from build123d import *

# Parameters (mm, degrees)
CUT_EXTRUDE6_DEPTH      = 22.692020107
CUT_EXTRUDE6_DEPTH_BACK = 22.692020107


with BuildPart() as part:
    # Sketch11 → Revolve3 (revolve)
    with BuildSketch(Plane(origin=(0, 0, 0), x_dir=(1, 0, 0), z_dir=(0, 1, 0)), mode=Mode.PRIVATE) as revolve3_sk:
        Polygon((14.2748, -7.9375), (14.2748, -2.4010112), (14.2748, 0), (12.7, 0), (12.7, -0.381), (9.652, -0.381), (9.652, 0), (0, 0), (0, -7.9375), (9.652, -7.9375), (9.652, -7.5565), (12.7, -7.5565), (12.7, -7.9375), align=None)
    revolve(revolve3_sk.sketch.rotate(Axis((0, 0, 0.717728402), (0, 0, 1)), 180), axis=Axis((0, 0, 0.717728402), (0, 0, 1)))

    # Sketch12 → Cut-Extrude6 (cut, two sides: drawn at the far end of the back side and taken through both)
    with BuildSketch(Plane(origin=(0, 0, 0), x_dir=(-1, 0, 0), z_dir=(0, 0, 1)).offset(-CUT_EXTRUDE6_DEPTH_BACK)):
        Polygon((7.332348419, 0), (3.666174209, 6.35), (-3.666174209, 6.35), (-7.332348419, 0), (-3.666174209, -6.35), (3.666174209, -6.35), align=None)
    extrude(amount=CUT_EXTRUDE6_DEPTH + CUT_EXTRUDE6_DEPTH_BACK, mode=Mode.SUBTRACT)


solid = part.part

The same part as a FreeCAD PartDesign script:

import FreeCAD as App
import Part
import Sketcher
Q = App.Units.Quantity


def add_polygon(sketch, points):
    """Adds a closed chain of lines whose ends are joined by coincident constraints."""
    first, n = sketch.GeometryCount, len(points)
    for a, b in zip(points, points[1:] + points[:1]):
        sketch.addGeometry(Part.LineSegment(App.Vector(*a, 0), App.Vector(*b, 0)), False)
    for i in range(n):
        sketch.addConstraint(Sketcher.Constraint("Coincident", first + i, 2, first + (i + 1) % n, 1))

doc = App.newDocument("Part")
body = doc.addObject("PartDesign::Body", "Body")

sketch1 = doc.addObject("Sketcher::SketchObject", "Sketch")
body.addObject(sketch1)
sketch1.AttachmentSupport = (doc.XZ_Plane, [""])
sketch1.MapMode = "FlatFace"
add_polygon(sketch1, [(14.2748, 7.9375), (14.2748, 0), (12.7, 0), (12.7, 0.381), (9.652, 0.381), (9.652, 0), (0, 0), (0, 7.9375), (9.652, 7.9375), (9.652, 7.5565), (12.7, 7.5565), (12.7, 7.9375)])
sketch1.addConstraint(Sketcher.Constraint("Vertical", 0))
sketch1.addConstraint(Sketcher.Constraint("Horizontal", 1))
sketch1.addConstraint(Sketcher.Constraint("Vertical", 2))
sketch1.addConstraint(Sketcher.Constraint("Horizontal", 3))
sketch1.addConstraint(Sketcher.Constraint("Vertical", 4))
sketch1.addConstraint(Sketcher.Constraint("Horizontal", 5))
sketch1.addConstraint(Sketcher.Constraint("Vertical", 6))
sketch1.addConstraint(Sketcher.Constraint("Horizontal", 7))
sketch1.addConstraint(Sketcher.Constraint("Vertical", 8))
sketch1.addConstraint(Sketcher.Constraint("Horizontal", 9))
sketch1.addConstraint(Sketcher.Constraint("Vertical", 10))
sketch1.addConstraint(Sketcher.Constraint("Horizontal", 11))
sketch1.addConstraint(Sketcher.Constraint("Coincident", 5, 2, -1, 1))
sketch1.addConstraint(Sketcher.Constraint("PointOnObject", 0, 2, -1))
sketch1.addConstraint(Sketcher.Constraint("Horizontal", 7, 2, 10, 2))
sketch1.addConstraint(Sketcher.Constraint("Vertical", 4, 2, 7, 2))
sketch1.addConstraint(Sketcher.Constraint("Vertical", 2, 2, 9, 2))
sketch1.addConstraint(Sketcher.Constraint("Equal", 4, 8))
sketch1.addConstraint(Sketcher.Constraint("DistanceX", 3, 2, 3, 1, Q("0.12 in")))
sketch1.addConstraint(Sketcher.Constraint("DistanceX", 5, 2, 5, 1, Q("0.38 in")))
sketch1.addConstraint(Sketcher.Constraint("DistanceX", 1, 2, 1, 1, Q("0.062 in")))
sketch1.addConstraint(Sketcher.Constraint("DistanceY", 0, 2, 0, 1, Q("0.3125 in")))
sketch1.addConstraint(Sketcher.Constraint("DistanceY", 2, 1, 2, 2, Q("0.015 in")))
revolution = doc.addObject("PartDesign::Revolution", "Revolution")
body.addObject(revolution)
revolution.Profile = sketch1
revolution.ReferenceAxis = (sketch1, ["V_Axis"])
revolution.Angle = 360

sketch2 = doc.addObject("Sketcher::SketchObject", "Sketch001")
body.addObject(sketch2)
sketch2.AttachmentSupport = (doc.XY_Plane, [""])
sketch2.MapMode = "FlatFace"
add_polygon(sketch2, [(-7.332348, 0), (-3.666174, -6.35), (3.666174, -6.35), (7.332348, 0), (3.666174, 6.35), (-3.666174, 6.35)])
sketch2.addConstraint(Sketcher.Constraint("Horizontal", 1))
sketch2.addConstraint(Sketcher.Constraint("Horizontal", 4))
sketch2.addConstraint(Sketcher.Constraint("Symmetric", 0, 2, 3, 2, -1, 1))
sketch2.addConstraint(Sketcher.Constraint("Symmetric", 2, 2, 5, 2, -1, 1))
sketch2.addConstraint(Sketcher.Constraint("PointOnObject", 2, 2, -1))
sketch2.addConstraint(Sketcher.Constraint("Parallel", 2, 5))
sketch2.addConstraint(Sketcher.Constraint("Vertical", 1, 2, 3, 2))
sketch2.addConstraint(Sketcher.Constraint("Angle", 0, Q("-60 deg")))
sketch2.addConstraint(Sketcher.Constraint("DistanceY", 1, 2, 3, 2, Q("0.5 in")))
sketch2.addConstraint(Sketcher.Constraint("DistanceX", 1, 1, 1, 2, 7.332348))
pocket1 = doc.addObject("PartDesign::Pocket", "Pocket")
body.addObject(pocket1)
pocket1.Profile = sketch2
pocket1.Type = "ThroughAll"
pocket1.Midplane = True

doc.recompute()
